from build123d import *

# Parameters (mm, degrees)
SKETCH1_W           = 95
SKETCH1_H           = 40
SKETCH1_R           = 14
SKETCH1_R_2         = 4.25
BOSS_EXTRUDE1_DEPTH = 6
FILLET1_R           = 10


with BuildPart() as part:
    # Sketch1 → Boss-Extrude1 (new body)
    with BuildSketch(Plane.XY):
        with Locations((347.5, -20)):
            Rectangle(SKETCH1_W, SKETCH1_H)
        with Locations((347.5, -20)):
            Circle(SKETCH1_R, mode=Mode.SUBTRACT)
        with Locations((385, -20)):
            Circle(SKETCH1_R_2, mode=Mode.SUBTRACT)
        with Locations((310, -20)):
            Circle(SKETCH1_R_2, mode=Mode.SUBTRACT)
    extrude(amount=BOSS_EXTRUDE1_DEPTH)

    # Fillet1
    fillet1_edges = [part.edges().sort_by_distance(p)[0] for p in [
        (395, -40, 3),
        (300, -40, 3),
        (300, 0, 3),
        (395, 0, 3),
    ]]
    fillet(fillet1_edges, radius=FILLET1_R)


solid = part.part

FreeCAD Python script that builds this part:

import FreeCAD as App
import Part
import Sketcher
Q = App.Units.Quantity


def edges_at(feature, points):
    """Names of the edges that pass closest to the given points."""
    edges = feature.Shape.Edges
    near = lambda p: min(range(len(edges)), key=lambda i: edges[i].distToShape(Part.Vertex(*p))[0])
    return sorted({f"Edge{near(p) + 1}" for p in points})

doc = App.newDocument("Part")
params = doc.addObject("Spreadsheet::Sheet", "Params")
for row, (alias, value) in enumerate([
    ("sketch1_diameter", "28 mm"),
    ("sketch1_diameter2", "8.5 mm"),
    ("sketch1_width", "95 mm"),
    ("sketch1_height", "40 mm"),
    ("pad1_length", "6 mm"),
    ("fillet_radius", "10 mm"),
], start=1):
    params.set(f"A{row}", alias)
    params.set(f"B{row}", "=" + value)
    params.setAlias(f"B{row}", alias)

body = doc.addObject("PartDesign::Body", "Body")

# Sketch on XY plane
sketch1 = body.newObject("Sketcher::SketchObject", "Sketch")
sketch1.AttachmentSupport = (doc.getObject("XY_Plane"), [""])
sketch1.MapMode = "FlatFace"
sketch1.addGeometry([
    Part.LineSegment(App.Vector(300, 0, 0), App.Vector(300, -40, 0)),  # 0
    Part.LineSegment(App.Vector(300, -40, 0), App.Vector(395, -40, 0)),  # 1
    Part.LineSegment(App.Vector(395, -40, 0), App.Vector(395, 0, 0)),  # 2
    Part.LineSegment(App.Vector(395, 0, 0), App.Vector(300, 0, 0)),  # 3
    Part.Circle(App.Vector(310, -20, 0), App.Vector(0, 0, 1), 4.2),  # 4
    Part.Circle(App.Vector(347.5, -20, 0), App.Vector(0, 0, 1), 14),  # 5
    Part.Circle(App.Vector(385, -20, 0), App.Vector(0, 0, 1), 4.2),  # 6
], False)
sketch1.addConstraint([
    Sketcher.Constraint("Coincident", 0, 2, 1, 1),
    Sketcher.Constraint("Coincident", 1, 2, 2, 1),
    Sketcher.Constraint("Coincident", 2, 2, 3, 1),
    Sketcher.Constraint("Coincident", 3, 2, 0, 1),
    Sketcher.Constraint("Vertical", 0),
    Sketcher.Constraint("Horizontal", 1),
    Sketcher.Constraint("Vertical", 2),
    Sketcher.Constraint("Horizontal", 3),
    Sketcher.Constraint("Equal", 4, 6),
    Sketcher.Constraint("PointOnObject", 2, 2, -1),
    Sketcher.Constraint("Horizontal", 4, 3, 5, 3),
    Sketcher.Constraint("Horizontal", 5, 3, 6, 3),
    Sketcher.Constraint("Diameter", 5, Q("28 mm")),
    Sketcher.Constraint("Diameter", 4, Q("8.5 mm")),
    Sketcher.Constraint("DistanceX", 1, 1, 1, 2, Q("95 mm")),
    Sketcher.Constraint("DistanceY", 0, 2, 0, 1, Q("40 mm")),
    Sketcher.Constraint("DistanceX", -1, 1, 4, 3, Q("310 mm")),
    Sketcher.Constraint("DistanceY", 4, 3, -1, 1, Q("20 mm")),
    Sketcher.Constraint("DistanceX", -1, 1, 6, 3, Q("385 mm")),
    Sketcher.Constraint("DistanceX", -1, 1, 0, 2, Q("300 mm")),
    Sketcher.Constraint("DistanceX", -1, 1, 5, 3, Q("347.5 mm")),
])
sketch1.setExpression("Constraints[12]", "Params.sketch1_diameter")
sketch1.setExpression("Constraints[13]", "Params.sketch1_diameter2")
sketch1.setExpression("Constraints[14]", "Params.sketch1_width")
sketch1.setExpression("Constraints[15]", "Params.sketch1_height")
pad1 = body.newObject("PartDesign::Pad", "Pad")
pad1.Profile = sketch1
pad1.setExpression("Length", "Params.pad1_length")
doc.recompute()

fillet = body.newObject("PartDesign::Fillet", "Fillet")
fillet.Base = (pad1, edges_at(pad1, [
    (395, -40, 3),
    (300, -40, 3),
    (300, 0, 3),
    (395, 0, 3),
]))
fillet.setExpression("Radius", "Params.fillet_radius")

doc.recompute()
